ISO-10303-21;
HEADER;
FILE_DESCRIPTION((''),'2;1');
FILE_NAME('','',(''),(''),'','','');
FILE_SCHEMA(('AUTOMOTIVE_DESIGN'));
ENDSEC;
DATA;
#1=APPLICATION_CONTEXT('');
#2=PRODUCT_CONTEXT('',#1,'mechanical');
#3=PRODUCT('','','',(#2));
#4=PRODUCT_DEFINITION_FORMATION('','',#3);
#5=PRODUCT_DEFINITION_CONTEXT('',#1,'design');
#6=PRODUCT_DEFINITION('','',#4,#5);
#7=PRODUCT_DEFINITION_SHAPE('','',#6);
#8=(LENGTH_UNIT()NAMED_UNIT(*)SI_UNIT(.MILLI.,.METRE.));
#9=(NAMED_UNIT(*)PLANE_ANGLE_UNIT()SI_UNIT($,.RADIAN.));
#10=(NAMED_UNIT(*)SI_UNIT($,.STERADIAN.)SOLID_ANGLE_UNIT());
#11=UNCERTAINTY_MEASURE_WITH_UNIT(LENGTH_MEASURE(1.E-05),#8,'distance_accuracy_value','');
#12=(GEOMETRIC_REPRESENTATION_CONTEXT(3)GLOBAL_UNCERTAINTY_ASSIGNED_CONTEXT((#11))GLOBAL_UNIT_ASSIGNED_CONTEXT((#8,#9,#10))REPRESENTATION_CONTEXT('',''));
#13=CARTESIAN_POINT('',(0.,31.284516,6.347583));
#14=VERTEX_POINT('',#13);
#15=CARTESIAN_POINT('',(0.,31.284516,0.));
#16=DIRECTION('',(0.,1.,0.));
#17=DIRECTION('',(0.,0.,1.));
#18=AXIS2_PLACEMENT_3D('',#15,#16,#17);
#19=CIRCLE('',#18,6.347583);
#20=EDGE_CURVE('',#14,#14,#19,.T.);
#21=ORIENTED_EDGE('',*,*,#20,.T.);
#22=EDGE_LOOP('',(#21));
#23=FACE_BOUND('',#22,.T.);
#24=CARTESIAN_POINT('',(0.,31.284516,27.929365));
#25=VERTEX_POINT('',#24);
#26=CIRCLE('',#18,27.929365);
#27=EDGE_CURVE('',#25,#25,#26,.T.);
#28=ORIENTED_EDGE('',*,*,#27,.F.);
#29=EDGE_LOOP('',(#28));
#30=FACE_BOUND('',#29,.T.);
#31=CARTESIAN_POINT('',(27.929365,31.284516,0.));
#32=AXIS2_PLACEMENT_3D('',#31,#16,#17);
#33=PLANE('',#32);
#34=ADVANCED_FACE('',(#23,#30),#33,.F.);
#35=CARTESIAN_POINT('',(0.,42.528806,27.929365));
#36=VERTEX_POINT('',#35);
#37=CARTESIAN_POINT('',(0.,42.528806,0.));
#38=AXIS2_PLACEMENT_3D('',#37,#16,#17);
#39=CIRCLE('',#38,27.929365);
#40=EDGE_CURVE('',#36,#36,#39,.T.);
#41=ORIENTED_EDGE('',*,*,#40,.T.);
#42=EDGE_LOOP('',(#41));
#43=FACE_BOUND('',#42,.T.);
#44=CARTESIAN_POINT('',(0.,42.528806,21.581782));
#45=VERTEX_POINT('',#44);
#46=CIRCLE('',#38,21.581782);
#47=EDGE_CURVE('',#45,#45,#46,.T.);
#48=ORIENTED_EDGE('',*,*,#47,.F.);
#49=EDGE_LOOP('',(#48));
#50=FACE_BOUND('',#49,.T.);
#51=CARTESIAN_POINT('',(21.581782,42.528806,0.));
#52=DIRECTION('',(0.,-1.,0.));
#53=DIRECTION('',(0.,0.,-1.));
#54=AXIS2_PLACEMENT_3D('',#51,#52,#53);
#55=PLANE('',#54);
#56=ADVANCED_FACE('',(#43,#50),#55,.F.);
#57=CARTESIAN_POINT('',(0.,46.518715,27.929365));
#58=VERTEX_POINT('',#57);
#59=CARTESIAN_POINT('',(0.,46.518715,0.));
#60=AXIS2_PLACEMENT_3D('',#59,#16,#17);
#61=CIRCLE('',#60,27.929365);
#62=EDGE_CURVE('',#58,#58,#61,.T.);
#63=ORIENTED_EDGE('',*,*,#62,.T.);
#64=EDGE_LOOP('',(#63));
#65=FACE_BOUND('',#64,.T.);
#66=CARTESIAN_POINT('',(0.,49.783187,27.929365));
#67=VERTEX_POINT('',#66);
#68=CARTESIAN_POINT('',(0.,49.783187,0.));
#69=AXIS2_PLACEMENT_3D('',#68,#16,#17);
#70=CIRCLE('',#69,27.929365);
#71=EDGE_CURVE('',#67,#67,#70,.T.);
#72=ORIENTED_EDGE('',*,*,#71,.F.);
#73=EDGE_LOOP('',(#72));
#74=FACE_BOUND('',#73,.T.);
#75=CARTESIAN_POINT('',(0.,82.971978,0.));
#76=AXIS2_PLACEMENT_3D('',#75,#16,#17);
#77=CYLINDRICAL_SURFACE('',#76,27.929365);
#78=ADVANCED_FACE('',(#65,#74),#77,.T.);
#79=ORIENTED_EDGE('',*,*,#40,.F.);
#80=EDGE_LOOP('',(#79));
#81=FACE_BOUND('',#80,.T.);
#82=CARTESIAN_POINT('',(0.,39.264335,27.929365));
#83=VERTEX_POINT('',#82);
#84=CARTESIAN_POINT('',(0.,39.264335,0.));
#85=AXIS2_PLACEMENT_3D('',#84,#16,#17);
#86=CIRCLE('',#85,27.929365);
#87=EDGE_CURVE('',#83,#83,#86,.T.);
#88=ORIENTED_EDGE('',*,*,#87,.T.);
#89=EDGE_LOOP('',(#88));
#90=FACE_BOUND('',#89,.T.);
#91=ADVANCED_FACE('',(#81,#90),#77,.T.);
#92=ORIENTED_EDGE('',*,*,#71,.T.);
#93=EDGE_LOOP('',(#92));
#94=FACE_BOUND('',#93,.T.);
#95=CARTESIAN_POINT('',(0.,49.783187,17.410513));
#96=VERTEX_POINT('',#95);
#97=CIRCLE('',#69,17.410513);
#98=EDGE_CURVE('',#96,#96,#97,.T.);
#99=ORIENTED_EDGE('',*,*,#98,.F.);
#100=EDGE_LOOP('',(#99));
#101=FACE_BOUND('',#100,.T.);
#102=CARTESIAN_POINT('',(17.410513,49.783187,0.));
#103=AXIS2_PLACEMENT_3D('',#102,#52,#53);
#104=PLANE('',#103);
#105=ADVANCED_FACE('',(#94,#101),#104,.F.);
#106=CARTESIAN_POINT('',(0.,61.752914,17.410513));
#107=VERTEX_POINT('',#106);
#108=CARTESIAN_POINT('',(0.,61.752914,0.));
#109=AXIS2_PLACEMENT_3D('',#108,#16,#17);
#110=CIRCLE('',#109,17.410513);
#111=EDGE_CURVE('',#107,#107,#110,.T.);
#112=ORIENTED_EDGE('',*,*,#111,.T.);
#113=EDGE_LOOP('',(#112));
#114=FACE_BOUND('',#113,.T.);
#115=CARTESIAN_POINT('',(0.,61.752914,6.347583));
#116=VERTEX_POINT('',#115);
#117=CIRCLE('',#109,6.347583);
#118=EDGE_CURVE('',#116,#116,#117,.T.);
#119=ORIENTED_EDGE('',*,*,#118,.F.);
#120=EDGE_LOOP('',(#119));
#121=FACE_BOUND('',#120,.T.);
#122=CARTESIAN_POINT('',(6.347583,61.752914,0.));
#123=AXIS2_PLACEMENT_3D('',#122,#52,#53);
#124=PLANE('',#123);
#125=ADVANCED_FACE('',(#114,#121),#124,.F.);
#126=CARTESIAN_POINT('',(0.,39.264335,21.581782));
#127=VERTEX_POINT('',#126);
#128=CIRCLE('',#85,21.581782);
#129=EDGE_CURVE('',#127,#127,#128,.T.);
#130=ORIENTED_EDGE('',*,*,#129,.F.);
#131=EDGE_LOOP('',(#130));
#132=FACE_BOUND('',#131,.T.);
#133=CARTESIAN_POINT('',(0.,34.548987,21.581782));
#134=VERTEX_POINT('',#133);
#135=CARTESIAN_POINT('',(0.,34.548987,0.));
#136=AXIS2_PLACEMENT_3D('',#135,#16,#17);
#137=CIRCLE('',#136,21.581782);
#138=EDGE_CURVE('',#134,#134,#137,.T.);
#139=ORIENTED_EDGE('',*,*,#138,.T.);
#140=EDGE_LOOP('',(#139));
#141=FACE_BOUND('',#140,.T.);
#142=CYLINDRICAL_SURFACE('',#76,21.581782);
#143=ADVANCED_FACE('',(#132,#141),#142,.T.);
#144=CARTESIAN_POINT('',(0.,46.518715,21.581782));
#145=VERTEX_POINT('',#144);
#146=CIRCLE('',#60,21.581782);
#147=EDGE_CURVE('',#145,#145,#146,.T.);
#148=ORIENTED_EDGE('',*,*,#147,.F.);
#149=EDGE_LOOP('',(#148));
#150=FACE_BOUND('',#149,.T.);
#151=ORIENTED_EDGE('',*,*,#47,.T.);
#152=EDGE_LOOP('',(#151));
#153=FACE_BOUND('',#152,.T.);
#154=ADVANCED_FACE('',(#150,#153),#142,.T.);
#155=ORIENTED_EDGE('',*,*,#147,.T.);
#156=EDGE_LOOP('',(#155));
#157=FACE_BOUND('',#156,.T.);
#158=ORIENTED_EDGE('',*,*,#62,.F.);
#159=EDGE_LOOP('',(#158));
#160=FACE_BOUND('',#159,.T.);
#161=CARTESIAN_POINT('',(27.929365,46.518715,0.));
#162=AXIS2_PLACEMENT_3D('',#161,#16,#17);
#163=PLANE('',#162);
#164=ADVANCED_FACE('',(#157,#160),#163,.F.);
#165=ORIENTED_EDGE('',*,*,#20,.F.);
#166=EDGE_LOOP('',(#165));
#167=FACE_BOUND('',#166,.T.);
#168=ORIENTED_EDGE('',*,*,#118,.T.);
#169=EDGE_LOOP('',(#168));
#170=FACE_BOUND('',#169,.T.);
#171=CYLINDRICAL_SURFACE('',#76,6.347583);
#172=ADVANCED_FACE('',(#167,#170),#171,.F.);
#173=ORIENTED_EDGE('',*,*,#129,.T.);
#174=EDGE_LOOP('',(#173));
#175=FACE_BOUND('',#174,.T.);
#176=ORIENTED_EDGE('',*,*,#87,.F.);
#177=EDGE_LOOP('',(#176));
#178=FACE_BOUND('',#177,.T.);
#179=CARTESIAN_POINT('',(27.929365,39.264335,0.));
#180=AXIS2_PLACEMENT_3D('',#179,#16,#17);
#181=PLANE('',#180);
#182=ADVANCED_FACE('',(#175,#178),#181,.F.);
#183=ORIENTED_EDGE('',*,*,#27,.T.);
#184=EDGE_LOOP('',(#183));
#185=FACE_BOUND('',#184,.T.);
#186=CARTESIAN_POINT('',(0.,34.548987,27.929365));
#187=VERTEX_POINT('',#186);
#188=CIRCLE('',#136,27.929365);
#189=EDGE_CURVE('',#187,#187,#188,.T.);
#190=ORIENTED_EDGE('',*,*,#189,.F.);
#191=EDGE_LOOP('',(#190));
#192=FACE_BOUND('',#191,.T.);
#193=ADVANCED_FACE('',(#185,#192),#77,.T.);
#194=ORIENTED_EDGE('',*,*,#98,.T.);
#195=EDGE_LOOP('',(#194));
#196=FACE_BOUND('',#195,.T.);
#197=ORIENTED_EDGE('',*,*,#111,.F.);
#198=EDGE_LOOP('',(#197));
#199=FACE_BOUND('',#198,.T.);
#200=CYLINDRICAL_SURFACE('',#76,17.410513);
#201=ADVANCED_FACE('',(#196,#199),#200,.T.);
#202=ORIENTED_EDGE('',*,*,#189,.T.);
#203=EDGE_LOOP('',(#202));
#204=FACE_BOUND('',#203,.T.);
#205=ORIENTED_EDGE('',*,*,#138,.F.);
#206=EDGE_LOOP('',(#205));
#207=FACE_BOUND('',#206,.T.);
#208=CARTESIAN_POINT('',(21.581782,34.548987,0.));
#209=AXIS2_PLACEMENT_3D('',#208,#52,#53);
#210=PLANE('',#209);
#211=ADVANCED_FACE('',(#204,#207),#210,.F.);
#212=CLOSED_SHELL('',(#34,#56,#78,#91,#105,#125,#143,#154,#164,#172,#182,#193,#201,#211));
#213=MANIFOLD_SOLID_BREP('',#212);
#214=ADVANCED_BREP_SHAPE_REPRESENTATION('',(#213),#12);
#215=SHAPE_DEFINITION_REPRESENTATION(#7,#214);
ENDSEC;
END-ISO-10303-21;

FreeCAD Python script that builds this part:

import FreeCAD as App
import Part
import Sketcher

V = App.Vector

doc = App.newDocument("Part")
params = doc.addObject("Spreadsheet::Sheet", "Params")
for row, (alias, value) in enumerate([
    ("revolution_angle", "360 deg"),
], start=1):
    params.set(f"A{row}", alias)
    params.set(f"B{row}", "=" + value)
    params.setAlias(f"B{row}", alias)

body = doc.addObject("PartDesign::Body", "Body")

sketch1 = body.newObject("Sketcher::SketchObject", "Sketch")
sketch1.AttachmentSupport = (doc.getObject("XY_Plane"), [""])
sketch1.MapMode = "FlatFace"
sketch1.addGeometry([
    Part.LineSegment(V(17.4, 61.8, 0), V(6.3, 61.8, 0)),
    Part.LineSegment(V(6.3, 61.8, 0), V(6.3, 31.3, 0)),
    Part.LineSegment(V(6.3, 31.3, 0), V(27.9, 31.3, 0)),
    Part.LineSegment(V(27.9, 31.3, 0), V(27.9, 34.5, 0)),
    Part.LineSegment(V(27.9, 34.5, 0), V(21.6, 34.5, 0)),
    Part.LineSegment(V(21.6, 34.5, 0), V(21.6, 39.3, 0)),
    Part.LineSegment(V(21.6, 39.3, 0), V(27.9, 39.3, 0)),
    Part.LineSegment(V(27.9, 39.3, 0), V(27.9, 42.5, 0)),
    Part.LineSegment(V(27.9, 42.5, 0), V(21.6, 42.5, 0)),
    Part.LineSegment(V(21.6, 42.5, 0), V(21.6, 46.5, 0)),
    Part.LineSegment(V(21.6, 46.5, 0), V(27.9, 46.5, 0)),
    Part.LineSegment(V(27.9, 46.5, 0), V(27.9, 49.8, 0)),
    Part.LineSegment(V(27.9, 49.8, 0), V(17.4, 49.8, 0)),
    Part.LineSegment(V(17.4, 49.8, 0), V(17.4, 61.8, 0)),
], False)
sketch1.addConstraint([
    Sketcher.Constraint("Coincident", 0, 2, 1, 1),
    Sketcher.Constraint("Coincident", 1, 2, 2, 1),
    Sketcher.Constraint("Coincident", 2, 2, 3, 1),
    Sketcher.Constraint("Coincident", 3, 2, 4, 1),
    Sketcher.Constraint("Coincident", 4, 2, 5, 1),
    Sketcher.Constraint("Coincident", 5, 2, 6, 1),
    Sketcher.Constraint("Coincident", 6, 2, 7, 1),
    Sketcher.Constraint("Coincident", 7, 2, 8, 1),
    Sketcher.Constraint("Coincident", 8, 2, 9, 1),
    Sketcher.Constraint("Coincident", 9, 2, 10, 1),
    Sketcher.Constraint("Coincident", 10, 2, 11, 1),
    Sketcher.Constraint("Coincident", 11, 2, 12, 1),
    Sketcher.Constraint("Coincident", 12, 2, 13, 1),
    Sketcher.Constraint("Coincident", 13, 2, 0, 1),
    Sketcher.Constraint("Horizontal", 0),
    Sketcher.Constraint("Vertical", 1),
    Sketcher.Constraint("Horizontal", 2),
    Sketcher.Constraint("Vertical", 3),
    Sketcher.Constraint("Horizontal", 4),
    Sketcher.Constraint("Vertical", 5),
    Sketcher.Constraint("Horizontal", 6),
    Sketcher.Constraint("Vertical", 7),
    Sketcher.Constraint("Horizontal", 8),
    Sketcher.Constraint("Vertical", 9),
    Sketcher.Constraint("Horizontal", 10),
    Sketcher.Constraint("Vertical", 11),
    Sketcher.Constraint("Horizontal", 12),
    Sketcher.Constraint("Vertical", 13),
    Sketcher.Constraint("Vertical", 3, 2, 6, 2),
    Sketcher.Constraint("Vertical", 5, 2, 8, 2),
    Sketcher.Constraint("Vertical", 7, 2, 10, 2),
    Sketcher.Constraint("Equal", 3, 7),
    Sketcher.Constraint("Equal", 7, 11),
    Sketcher.Constraint("DistanceY", 1, 2, 1, 1, 30.468398),
    Sketcher.Constraint("DistanceX", 0, 2, 0, 1, 11.06293),
    Sketcher.Constraint("DistanceX", 12, 2, 12, 1, 10.518852),
    Sketcher.Constraint("DistanceY", 3, 1, 3, 2, 3.264471),
    Sketcher.Constraint("DistanceY", 9, 1, 9, 2, 3.989909),
    Sketcher.Constraint("DistanceX", 1, 2, 4, 2, 15.234199),
    Sketcher.Constraint("DistanceY", 9, 2, 13, 2, 15.234199),
    Sketcher.Constraint("DistanceX", -1, 1, 0, 2, 6.347583),
    Sketcher.Constraint("DistanceY", -1, 1, 0, 2, 61.752914),
])
revolution = body.newObject("PartDesign::Revolution", "Revolution")
revolution.Profile = sketch1
revolution.ReferenceAxis = (sketch1, ["V_Axis"])
revolution.setExpression("Angle", "Params.revolution_angle")

doc.recompute()
